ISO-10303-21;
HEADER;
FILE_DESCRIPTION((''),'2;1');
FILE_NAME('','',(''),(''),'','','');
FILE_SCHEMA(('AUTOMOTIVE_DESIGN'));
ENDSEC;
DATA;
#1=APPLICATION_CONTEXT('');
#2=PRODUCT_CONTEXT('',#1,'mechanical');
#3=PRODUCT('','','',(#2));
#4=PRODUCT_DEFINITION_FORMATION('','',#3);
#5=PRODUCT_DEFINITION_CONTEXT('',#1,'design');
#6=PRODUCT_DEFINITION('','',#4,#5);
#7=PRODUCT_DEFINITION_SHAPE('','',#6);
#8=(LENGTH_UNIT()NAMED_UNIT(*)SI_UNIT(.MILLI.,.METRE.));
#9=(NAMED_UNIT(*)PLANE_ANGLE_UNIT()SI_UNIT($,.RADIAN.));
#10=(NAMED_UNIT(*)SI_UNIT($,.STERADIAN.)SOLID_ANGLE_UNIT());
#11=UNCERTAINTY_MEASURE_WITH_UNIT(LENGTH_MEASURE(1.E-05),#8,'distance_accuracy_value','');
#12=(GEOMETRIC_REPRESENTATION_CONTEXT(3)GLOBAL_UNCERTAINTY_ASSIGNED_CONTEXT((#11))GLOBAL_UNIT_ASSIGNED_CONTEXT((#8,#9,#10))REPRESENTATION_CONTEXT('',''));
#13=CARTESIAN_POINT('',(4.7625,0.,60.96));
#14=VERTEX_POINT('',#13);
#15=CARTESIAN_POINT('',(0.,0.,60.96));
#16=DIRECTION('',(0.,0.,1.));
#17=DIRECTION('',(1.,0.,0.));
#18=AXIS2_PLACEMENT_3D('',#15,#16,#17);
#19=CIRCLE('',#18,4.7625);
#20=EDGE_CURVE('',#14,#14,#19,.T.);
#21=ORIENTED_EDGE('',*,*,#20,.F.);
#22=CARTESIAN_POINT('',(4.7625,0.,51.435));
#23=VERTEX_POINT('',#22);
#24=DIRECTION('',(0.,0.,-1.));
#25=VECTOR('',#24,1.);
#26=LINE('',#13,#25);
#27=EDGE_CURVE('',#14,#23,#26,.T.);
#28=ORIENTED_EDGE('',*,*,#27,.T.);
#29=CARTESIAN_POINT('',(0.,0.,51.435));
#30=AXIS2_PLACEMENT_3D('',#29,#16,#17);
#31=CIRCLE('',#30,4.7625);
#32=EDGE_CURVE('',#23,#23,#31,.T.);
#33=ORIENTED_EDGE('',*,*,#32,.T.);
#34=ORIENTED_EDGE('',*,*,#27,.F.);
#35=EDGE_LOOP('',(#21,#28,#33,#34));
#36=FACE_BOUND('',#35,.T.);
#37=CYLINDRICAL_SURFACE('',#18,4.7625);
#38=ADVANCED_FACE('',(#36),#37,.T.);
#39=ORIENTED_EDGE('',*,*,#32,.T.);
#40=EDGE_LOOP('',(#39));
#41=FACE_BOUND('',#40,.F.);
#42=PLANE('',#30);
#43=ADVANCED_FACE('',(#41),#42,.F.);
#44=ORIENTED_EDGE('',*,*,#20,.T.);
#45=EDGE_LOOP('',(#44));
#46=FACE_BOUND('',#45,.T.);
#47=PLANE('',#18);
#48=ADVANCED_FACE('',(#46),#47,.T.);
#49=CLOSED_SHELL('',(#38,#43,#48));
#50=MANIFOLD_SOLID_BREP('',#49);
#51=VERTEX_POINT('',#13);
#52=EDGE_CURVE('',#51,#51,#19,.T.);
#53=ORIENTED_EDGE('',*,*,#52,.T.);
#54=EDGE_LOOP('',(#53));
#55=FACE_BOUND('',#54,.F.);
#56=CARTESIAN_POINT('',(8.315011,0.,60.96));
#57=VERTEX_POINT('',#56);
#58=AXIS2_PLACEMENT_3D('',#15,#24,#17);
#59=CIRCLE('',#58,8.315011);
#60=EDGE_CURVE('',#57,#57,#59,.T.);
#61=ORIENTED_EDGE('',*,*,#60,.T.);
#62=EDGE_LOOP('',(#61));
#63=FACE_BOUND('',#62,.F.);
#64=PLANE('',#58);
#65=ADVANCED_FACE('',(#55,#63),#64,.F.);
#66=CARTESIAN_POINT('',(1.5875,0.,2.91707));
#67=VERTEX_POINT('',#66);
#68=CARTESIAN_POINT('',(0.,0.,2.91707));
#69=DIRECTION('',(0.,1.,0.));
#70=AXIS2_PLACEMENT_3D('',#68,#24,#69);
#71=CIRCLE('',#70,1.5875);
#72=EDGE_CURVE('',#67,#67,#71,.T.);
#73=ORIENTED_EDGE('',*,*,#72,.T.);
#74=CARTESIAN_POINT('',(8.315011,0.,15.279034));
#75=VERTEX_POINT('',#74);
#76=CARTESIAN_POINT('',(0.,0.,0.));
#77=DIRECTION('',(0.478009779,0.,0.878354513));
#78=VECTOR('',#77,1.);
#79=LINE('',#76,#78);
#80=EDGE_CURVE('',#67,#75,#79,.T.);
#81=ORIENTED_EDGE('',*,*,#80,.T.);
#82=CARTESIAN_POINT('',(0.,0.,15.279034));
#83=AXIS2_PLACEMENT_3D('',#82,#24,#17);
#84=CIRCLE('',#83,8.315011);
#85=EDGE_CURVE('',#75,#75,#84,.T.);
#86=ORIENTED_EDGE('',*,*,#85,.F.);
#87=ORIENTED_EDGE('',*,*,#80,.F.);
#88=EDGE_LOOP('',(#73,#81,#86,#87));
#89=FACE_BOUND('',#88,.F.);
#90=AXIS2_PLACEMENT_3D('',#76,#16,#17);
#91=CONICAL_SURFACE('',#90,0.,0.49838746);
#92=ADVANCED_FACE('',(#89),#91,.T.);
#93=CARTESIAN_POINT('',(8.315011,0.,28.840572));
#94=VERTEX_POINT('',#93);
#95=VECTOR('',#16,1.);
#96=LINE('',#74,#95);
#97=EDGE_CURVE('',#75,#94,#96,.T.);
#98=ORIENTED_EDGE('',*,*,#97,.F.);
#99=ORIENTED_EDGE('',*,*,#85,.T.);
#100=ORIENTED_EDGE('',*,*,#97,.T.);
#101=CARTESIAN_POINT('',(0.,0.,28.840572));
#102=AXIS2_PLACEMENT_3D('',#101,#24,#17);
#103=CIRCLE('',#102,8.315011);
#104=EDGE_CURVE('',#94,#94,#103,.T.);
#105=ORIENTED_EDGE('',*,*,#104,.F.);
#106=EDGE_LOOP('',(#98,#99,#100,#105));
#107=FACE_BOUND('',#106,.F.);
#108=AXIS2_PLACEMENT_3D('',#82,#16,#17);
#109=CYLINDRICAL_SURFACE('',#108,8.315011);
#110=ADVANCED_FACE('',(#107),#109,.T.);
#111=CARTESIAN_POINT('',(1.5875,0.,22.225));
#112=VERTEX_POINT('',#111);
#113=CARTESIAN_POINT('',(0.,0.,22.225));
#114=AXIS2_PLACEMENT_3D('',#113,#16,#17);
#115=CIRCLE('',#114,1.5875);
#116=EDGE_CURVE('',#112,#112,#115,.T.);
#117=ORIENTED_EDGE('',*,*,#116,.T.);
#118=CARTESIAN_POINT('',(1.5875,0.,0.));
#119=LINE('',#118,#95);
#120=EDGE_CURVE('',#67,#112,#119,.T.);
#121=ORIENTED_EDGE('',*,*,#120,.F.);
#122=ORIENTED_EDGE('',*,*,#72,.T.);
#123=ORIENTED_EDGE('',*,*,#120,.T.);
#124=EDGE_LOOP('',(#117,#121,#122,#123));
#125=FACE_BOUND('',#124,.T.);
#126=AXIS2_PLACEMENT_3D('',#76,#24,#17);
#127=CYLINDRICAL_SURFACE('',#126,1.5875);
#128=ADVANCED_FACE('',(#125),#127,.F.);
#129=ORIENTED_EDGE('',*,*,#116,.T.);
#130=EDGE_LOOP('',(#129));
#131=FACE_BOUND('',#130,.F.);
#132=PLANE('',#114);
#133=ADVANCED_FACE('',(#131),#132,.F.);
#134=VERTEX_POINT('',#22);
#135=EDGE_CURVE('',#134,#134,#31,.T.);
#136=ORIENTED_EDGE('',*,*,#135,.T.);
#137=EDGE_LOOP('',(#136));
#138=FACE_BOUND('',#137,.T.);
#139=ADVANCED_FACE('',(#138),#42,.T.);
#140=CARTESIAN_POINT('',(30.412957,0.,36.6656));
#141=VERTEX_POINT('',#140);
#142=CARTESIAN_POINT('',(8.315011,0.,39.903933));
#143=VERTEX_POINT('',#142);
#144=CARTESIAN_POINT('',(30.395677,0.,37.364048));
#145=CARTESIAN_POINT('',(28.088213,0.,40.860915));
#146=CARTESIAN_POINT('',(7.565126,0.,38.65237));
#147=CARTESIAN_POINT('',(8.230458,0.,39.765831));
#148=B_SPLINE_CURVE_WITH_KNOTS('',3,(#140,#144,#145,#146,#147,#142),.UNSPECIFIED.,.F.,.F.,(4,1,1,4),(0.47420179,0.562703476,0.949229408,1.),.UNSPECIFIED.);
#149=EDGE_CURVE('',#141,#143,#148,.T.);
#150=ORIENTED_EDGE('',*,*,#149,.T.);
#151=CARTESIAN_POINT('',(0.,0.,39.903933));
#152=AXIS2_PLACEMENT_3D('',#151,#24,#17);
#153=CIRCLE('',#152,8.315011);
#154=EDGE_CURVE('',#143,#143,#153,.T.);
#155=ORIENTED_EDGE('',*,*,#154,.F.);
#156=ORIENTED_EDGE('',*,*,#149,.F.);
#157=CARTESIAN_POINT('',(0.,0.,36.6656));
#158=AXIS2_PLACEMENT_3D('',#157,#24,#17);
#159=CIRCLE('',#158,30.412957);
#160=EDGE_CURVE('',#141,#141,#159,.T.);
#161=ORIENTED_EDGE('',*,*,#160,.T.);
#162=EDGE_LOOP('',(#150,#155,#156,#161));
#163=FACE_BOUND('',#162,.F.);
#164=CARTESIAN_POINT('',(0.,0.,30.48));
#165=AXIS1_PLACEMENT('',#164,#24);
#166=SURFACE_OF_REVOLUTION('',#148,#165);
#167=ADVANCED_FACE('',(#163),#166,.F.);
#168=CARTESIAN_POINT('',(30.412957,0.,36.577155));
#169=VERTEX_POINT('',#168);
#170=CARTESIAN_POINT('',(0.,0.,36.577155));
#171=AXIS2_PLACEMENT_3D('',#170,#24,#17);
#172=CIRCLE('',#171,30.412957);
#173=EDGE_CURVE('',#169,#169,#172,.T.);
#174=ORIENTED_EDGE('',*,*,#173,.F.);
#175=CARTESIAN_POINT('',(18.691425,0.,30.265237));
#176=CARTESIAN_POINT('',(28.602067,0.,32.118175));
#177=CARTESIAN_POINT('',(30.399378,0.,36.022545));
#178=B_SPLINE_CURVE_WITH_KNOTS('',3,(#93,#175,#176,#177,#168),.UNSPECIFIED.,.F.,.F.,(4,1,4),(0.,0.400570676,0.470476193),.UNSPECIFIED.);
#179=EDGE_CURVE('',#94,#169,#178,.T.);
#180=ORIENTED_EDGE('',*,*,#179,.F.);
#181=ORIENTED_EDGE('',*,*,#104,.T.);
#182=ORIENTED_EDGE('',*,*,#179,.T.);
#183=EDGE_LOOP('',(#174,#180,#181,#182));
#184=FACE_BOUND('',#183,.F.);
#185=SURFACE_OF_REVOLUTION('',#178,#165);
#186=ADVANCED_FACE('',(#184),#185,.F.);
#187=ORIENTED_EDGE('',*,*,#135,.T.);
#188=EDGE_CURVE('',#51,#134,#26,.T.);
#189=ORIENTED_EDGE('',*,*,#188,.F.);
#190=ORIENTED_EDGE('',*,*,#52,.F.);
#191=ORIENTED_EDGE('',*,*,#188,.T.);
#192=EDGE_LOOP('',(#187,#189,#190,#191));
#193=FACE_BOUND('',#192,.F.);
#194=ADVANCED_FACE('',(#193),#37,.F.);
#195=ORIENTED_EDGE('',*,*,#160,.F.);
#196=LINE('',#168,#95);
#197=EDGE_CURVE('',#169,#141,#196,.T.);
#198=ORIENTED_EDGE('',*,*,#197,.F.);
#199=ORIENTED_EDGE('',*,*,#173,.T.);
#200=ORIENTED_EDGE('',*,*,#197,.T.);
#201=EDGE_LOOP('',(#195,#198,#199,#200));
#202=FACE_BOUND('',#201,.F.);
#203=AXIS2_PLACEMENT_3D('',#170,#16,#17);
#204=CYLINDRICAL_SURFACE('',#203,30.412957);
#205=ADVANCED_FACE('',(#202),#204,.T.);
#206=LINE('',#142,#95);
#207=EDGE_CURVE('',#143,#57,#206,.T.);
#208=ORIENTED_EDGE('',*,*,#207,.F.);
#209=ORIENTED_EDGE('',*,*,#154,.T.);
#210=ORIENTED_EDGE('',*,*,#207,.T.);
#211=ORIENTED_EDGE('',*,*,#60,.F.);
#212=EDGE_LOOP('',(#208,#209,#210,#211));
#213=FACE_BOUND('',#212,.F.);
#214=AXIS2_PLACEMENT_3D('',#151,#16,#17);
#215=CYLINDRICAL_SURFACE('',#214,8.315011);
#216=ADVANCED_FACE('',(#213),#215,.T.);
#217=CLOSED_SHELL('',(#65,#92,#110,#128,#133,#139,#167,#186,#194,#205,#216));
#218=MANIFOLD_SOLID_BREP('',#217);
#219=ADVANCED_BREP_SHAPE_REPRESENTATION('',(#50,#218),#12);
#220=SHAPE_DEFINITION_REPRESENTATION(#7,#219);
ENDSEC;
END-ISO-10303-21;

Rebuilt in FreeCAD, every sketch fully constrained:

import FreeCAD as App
import Part
import Sketcher

V = App.Vector
Q = App.Units.Quantity

doc = App.newDocument("Part")
params = doc.addObject("Spreadsheet::Sheet", "Params")
for row, (alias, value) in enumerate([
    ("sketch1_height", "2.4 in"),
    ("revolution_angle", "360 deg"),
    ("sketch2_diameter", "0.375 in"),
    ("pocket1_length", "0.375 in"),
    ("sketch3_diameter", "0.125 in"),
    ("pocket2_length", "0.875 in"),
    ("sketch4_diameter", "0.375 in"),
    ("pad1_length", "0.375 in"),
], start=1):
    params.set(f"A{row}", alias)
    params.set(f"B{row}", "=" + value)
    params.setAlias(f"B{row}", alias)

body = doc.addObject("PartDesign::Body", "Body")

sketch1 = body.newObject("Sketcher::SketchObject", "Sketch")
sketch1.AttachmentSupport = (doc.getObject("XZ_Plane"), [""])
sketch1.MapMode = "FlatFace"
sketch1.addGeometry(Part.LineSegment(V(0, 60.96, 0), V(0, 0, 0)), False)
sketch1.addGeometry(Part.LineSegment(V(0, 0, 0), V(8.315011, 15.279034, 0)), False)
sketch1.addGeometry(Part.LineSegment(V(8.315011, 15.279034, 0), V(8.315011, 28.840572, 0)), False)
sketch1.addGeometry(Part.BSplineCurve([V(8.315011, 28.840572, 0), V(18.691425, 30.265237, 0), V(28.602067, 32.118175, 0), V(30.399378, 36.022545, 0), V(30.412957, 36.577155, 0)], [4, 1, 4], [0, 0.400570676, 0.470476193], False, 3, [1, 1, 1, 1, 1], False), False)
sketch1.addGeometry(Part.LineSegment(V(30.412957, 36.577155, 0), V(30.412957, 36.6656, 0)), False)
sketch1.addGeometry(Part.BSplineCurve([V(30.412957, 36.6656, 0), V(30.395677, 37.364048, 0), V(28.088213, 40.860915, 0), V(7.565126, 38.65237, 0), V(8.230458, 39.765831, 0), V(8.315011, 39.903933, 0)], [4, 1, 1, 4], [0.47420179, 0.562703476, 0.949229408, 1], False, 3, [1, 1, 1, 1, 1, 1], False), False)
sketch1.addGeometry(Part.LineSegment(V(8.315011, 39.903933, 0), V(8.315011, 60.96, 0)), False)
sketch1.addGeometry(Part.LineSegment(V(8.315011, 60.96, 0), V(0, 60.96, 0)), False)
sketch1.addConstraint(Sketcher.Constraint("Block", 3))
sketch1.addConstraint(Sketcher.Constraint("Block", 5))
sketch1.addConstraint(Sketcher.Constraint("Coincident", 0, 2, 1, 1))
sketch1.addConstraint(Sketcher.Constraint("Coincident", 1, 2, 2, 1))
sketch1.addConstraint(Sketcher.Constraint("Coincident", 2, 2, 3, 1))
sketch1.addConstraint(Sketcher.Constraint("Coincident", 3, 2, 4, 1))
sketch1.addConstraint(Sketcher.Constraint("Coincident", 4, 2, 5, 1))
sketch1.addConstraint(Sketcher.Constraint("Coincident", 5, 2, 6, 1))
sketch1.addConstraint(Sketcher.Constraint("Coincident", 6, 2, 7, 1))
sketch1.addConstraint(Sketcher.Constraint("Coincident", 7, 2, 0, 1))
sketch1.addConstraint(Sketcher.Constraint("Vertical", 0))
sketch1.addConstraint(Sketcher.Constraint("Vertical", 2))
sketch1.addConstraint(Sketcher.Constraint("Vertical", 6))
sketch1.addConstraint(Sketcher.Constraint("Horizontal", 7))
sketch1.addConstraint(Sketcher.Constraint("Coincident", 0, 2, -1, 1))
sketch1.addConstraint(Sketcher.Constraint("DistanceY", 0, 2, 0, 1, Q("2.4 in")))
sketch1.addConstraint(Sketcher.Constraint("DistanceY", 2, 1, 2, 2, 13.561538))
sketch1.setExpression("Constraints[15]", "Params.sketch1_height")
revolution = body.newObject("PartDesign::Revolution", "Revolution")
revolution.Profile = sketch1
revolution.ReferenceAxis = (sketch1, ["V_Axis"])
revolution.setExpression("Angle", "Params.revolution_angle")

sketch2 = body.newObject("Sketcher::SketchObject", "Sketch001")
sketch2.AttachmentSupport = (doc.getObject("XY_Plane"), [""])
sketch2.MapMode = "FlatFace"
sketch2.AttachmentOffset = App.Placement(V(0, 0, 2.4 * 25.4), App.Rotation())
sketch2.addGeometry(Part.Circle(V(0, 0, 0), V(0, 0, 1), 4.8), False)
sketch2.addConstraint(Sketcher.Constraint("Coincident", 0, 3, -1, 1))
sketch2.addConstraint(Sketcher.Constraint("Diameter", 0, Q("0.375 in")))
sketch2.setExpression("Constraints[1]", "Params.sketch2_diameter")
pocket1 = body.newObject("PartDesign::Pocket", "Pocket")
pocket1.Profile = sketch2
pocket1.setExpression("Length", "Params.pocket1_length")

sketch3 = body.newObject("Sketcher::SketchObject", "Sketch002")
sketch3.AttachmentSupport = (doc.getObject("XY_Plane"), [""])
sketch3.MapMode = "FlatFace"
sketch3.addGeometry(Part.Circle(V(0, 0, 0), V(0, 0, 1), 1.6), False)
sketch3.addConstraint(Sketcher.Constraint("Coincident", 0, 3, -1, 1))
sketch3.addConstraint(Sketcher.Constraint("Diameter", 0, Q("0.125 in")))
sketch3.setExpression("Constraints[1]", "Params.sketch3_diameter")
pocket2 = body.newObject("PartDesign::Pocket", "Pocket001")
pocket2.Profile = sketch3
pocket2.setExpression("Length", "Params.pocket2_length")
pocket2.Reversed = True
body2 = doc.addObject("PartDesign::Body", "Body001")

sketch4 = body2.newObject("Sketcher::SketchObject", "Sketch003")
sketch4.AttachmentSupport = (doc.getObject("XY_Plane001"), [""])
sketch4.MapMode = "FlatFace"
sketch4.AttachmentOffset = App.Placement(V(0, 0, 2.4 * 25.4), App.Rotation())
sketch4.addGeometry(Part.Circle(V(0, 0, 0), V(0, 0, 1), 4.8), False)
sketch4.addConstraint(Sketcher.Constraint("Coincident", 0, 3, -1, 1))
sketch4.addConstraint(Sketcher.Constraint("Diameter", 0, Q("0.375 in")))
sketch4.setExpression("Constraints[1]", "Params.sketch4_diameter")
pad1 = body2.newObject("PartDesign::Pad", "Pad")
pad1.Profile = sketch4
pad1.setExpression("Length", "Params.pad1_length")
pad1.Reversed = True

doc.recompute()
